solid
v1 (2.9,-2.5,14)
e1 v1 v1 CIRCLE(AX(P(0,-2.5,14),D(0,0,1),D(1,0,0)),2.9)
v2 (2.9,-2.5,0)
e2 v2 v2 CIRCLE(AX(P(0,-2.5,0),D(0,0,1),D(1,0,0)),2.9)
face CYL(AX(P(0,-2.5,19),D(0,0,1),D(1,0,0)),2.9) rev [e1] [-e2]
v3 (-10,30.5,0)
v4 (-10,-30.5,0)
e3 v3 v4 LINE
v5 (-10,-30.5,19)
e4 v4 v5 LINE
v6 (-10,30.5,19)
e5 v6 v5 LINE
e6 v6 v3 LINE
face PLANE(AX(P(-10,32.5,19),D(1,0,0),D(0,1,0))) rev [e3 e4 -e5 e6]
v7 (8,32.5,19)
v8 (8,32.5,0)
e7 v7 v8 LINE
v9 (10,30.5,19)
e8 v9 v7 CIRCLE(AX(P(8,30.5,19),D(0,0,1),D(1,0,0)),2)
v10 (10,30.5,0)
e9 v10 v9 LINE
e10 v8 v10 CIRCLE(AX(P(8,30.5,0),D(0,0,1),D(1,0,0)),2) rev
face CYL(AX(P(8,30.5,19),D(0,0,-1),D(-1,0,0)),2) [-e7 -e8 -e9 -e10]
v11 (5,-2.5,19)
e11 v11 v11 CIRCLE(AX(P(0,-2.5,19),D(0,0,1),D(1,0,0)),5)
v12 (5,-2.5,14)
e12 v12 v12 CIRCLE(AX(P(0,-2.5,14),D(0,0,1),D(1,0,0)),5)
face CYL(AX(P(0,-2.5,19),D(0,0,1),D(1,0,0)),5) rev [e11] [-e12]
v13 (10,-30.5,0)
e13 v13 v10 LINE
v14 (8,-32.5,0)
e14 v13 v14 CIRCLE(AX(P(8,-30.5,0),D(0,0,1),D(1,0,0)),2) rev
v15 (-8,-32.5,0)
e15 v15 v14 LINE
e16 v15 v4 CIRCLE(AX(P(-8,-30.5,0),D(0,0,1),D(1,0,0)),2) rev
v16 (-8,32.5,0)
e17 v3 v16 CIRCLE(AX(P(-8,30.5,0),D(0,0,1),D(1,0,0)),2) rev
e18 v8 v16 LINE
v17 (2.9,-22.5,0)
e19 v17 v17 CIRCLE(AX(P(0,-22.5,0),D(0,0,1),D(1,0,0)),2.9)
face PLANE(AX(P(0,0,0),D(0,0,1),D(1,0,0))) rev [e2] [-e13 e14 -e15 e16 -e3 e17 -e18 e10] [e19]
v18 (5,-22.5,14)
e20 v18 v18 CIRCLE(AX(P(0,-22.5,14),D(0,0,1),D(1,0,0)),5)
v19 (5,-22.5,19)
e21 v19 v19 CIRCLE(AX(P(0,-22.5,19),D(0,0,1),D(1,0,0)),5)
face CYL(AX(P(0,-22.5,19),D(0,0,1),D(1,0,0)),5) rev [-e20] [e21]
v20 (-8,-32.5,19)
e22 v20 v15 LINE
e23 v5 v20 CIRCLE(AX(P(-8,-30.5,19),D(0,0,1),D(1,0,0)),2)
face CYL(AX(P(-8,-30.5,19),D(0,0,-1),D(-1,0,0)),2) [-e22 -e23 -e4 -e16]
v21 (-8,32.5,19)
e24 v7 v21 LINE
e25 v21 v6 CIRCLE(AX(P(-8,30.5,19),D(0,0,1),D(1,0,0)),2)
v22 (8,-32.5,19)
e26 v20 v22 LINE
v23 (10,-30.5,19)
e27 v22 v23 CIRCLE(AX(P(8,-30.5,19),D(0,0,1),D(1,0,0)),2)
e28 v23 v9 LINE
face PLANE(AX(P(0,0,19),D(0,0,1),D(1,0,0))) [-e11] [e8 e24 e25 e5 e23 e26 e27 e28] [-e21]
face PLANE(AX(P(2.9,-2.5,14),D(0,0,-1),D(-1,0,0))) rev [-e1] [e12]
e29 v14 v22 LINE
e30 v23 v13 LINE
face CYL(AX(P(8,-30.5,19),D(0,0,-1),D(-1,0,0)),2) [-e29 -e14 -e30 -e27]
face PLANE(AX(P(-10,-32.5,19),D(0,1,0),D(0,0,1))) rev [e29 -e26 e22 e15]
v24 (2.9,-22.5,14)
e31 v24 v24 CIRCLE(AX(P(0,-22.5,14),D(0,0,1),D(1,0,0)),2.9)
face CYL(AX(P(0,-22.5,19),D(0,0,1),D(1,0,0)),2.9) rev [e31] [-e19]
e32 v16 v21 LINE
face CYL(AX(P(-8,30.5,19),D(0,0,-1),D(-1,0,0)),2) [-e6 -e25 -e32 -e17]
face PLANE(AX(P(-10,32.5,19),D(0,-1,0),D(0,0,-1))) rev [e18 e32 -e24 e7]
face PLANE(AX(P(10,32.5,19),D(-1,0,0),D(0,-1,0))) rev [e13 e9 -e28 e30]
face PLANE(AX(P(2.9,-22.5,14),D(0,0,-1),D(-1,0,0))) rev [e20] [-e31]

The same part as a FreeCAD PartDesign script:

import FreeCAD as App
import Part
import Sketcher
Q = App.Units.Quantity


def edges_at(feature, points):
    """Names of the edges that pass closest to the given points."""
    edges = feature.Shape.Edges
    near = lambda p: min(range(len(edges)), key=lambda i: edges[i].distToShape(Part.Vertex(*p))[0])
    return sorted({f"Edge{near(p) + 1}" for p in points})

doc = App.newDocument("Part")
body = doc.addObject("PartDesign::Body", "Body")

sketch1 = body.newObject("Sketcher::SketchObject", "Sketch")
sketch1.AttachmentSupport = (doc.getObject("XY_Plane"), [""])
sketch1.MapMode = "FlatFace"
sketch1.addGeometry(Part.LineSegment(App.Vector(-10, 32.5, 0), App.Vector(-10, -32.5, 0)), False)
sketch1.addGeometry(Part.LineSegment(App.Vector(-10, -32.5, 0), App.Vector(10, -32.5, 0)), False)
sketch1.addGeometry(Part.LineSegment(App.Vector(10, -32.5, 0), App.Vector(10, 32.5, 0)), False)
sketch1.addGeometry(Part.LineSegment(App.Vector(10, 32.5, 0), App.Vector(-10, 32.5, 0)), False)
sketch1.addConstraint(Sketcher.Constraint("Coincident", 0, 2, 1, 1))
sketch1.addConstraint(Sketcher.Constraint("Coincident", 1, 2, 2, 1))
sketch1.addConstraint(Sketcher.Constraint("Coincident", 2, 2, 3, 1))
sketch1.addConstraint(Sketcher.Constraint("Coincident", 3, 2, 0, 1))
sketch1.addConstraint(Sketcher.Constraint("Vertical", 0))
sketch1.addConstraint(Sketcher.Constraint("Horizontal", 1))
sketch1.addConstraint(Sketcher.Constraint("Vertical", 2))
sketch1.addConstraint(Sketcher.Constraint("Horizontal", 3))
sketch1.addConstraint(Sketcher.Constraint("Symmetric", 0, 2, 2, 2, -1, 1))
sketch1.addConstraint(Sketcher.Constraint("DistanceX", 1, 1, 1, 2, Q("20 mm")))
sketch1.addConstraint(Sketcher.Constraint("DistanceY", 0, 2, 0, 1, Q("65 mm")))
pad1 = body.newObject("PartDesign::Pad", "Pad")
pad1.Profile = sketch1
pad1.Length = 19

sketch2 = body.newObject("Sketcher::SketchObject", "Sketch001")
sketch2.AttachmentSupport = (doc.getObject("XY_Plane"), [""])
sketch2.MapMode = "FlatFace"
sketch2.AttachmentOffset = App.Placement(App.Vector(0, 0, 19), App.Rotation())
sketch2.addGeometry(Part.Circle(App.Vector(0, -2.5, 0), App.Vector(0, 0, 1), 2.9), False)
sketch2.addGeometry(Part.Circle(App.Vector(0, -22.5, 0), App.Vector(0, 0, 1), 2.9), False)
sketch2.addConstraint(Sketcher.Constraint("Equal", 0, 1))
sketch2.addConstraint(Sketcher.Constraint("PointOnObject", 0, 3, -2))
sketch2.addConstraint(Sketcher.Constraint("PointOnObject", 1, 3, -2))
sketch2.addConstraint(Sketcher.Constraint("Diameter", 0, Q("5.8 mm")))
sketch2.addConstraint(Sketcher.Constraint("DistanceY", 1, 3, 0, 3, Q("20 mm")))
sketch2.addConstraint(Sketcher.Constraint("DistanceY", 0, 3, -1, 1, Q("2.5 mm")))
doc.recompute()
hole = body.newObject("PartDesign::Hole", "Hole")
hole.Profile = sketch2
hole.ThreadType = "None"
hole.Diameter = 5.8
hole.DepthType = "ThroughAll"
hole.HoleCutType = "Counterbore"
hole.HoleCutDiameter = 10
hole.HoleCutDepth = 5
doc.recompute()

fillet = body.newObject("PartDesign::Fillet", "Fillet")
fillet.Base = (hole, edges_at(hole, [
    (10, -32.5, 9.5),
    (-10, -32.5, 9.5),
    (-10, 32.5, 9.5),
    (10, 32.5, 9.5),
]))
fillet.Radius = 2

doc.recompute()
